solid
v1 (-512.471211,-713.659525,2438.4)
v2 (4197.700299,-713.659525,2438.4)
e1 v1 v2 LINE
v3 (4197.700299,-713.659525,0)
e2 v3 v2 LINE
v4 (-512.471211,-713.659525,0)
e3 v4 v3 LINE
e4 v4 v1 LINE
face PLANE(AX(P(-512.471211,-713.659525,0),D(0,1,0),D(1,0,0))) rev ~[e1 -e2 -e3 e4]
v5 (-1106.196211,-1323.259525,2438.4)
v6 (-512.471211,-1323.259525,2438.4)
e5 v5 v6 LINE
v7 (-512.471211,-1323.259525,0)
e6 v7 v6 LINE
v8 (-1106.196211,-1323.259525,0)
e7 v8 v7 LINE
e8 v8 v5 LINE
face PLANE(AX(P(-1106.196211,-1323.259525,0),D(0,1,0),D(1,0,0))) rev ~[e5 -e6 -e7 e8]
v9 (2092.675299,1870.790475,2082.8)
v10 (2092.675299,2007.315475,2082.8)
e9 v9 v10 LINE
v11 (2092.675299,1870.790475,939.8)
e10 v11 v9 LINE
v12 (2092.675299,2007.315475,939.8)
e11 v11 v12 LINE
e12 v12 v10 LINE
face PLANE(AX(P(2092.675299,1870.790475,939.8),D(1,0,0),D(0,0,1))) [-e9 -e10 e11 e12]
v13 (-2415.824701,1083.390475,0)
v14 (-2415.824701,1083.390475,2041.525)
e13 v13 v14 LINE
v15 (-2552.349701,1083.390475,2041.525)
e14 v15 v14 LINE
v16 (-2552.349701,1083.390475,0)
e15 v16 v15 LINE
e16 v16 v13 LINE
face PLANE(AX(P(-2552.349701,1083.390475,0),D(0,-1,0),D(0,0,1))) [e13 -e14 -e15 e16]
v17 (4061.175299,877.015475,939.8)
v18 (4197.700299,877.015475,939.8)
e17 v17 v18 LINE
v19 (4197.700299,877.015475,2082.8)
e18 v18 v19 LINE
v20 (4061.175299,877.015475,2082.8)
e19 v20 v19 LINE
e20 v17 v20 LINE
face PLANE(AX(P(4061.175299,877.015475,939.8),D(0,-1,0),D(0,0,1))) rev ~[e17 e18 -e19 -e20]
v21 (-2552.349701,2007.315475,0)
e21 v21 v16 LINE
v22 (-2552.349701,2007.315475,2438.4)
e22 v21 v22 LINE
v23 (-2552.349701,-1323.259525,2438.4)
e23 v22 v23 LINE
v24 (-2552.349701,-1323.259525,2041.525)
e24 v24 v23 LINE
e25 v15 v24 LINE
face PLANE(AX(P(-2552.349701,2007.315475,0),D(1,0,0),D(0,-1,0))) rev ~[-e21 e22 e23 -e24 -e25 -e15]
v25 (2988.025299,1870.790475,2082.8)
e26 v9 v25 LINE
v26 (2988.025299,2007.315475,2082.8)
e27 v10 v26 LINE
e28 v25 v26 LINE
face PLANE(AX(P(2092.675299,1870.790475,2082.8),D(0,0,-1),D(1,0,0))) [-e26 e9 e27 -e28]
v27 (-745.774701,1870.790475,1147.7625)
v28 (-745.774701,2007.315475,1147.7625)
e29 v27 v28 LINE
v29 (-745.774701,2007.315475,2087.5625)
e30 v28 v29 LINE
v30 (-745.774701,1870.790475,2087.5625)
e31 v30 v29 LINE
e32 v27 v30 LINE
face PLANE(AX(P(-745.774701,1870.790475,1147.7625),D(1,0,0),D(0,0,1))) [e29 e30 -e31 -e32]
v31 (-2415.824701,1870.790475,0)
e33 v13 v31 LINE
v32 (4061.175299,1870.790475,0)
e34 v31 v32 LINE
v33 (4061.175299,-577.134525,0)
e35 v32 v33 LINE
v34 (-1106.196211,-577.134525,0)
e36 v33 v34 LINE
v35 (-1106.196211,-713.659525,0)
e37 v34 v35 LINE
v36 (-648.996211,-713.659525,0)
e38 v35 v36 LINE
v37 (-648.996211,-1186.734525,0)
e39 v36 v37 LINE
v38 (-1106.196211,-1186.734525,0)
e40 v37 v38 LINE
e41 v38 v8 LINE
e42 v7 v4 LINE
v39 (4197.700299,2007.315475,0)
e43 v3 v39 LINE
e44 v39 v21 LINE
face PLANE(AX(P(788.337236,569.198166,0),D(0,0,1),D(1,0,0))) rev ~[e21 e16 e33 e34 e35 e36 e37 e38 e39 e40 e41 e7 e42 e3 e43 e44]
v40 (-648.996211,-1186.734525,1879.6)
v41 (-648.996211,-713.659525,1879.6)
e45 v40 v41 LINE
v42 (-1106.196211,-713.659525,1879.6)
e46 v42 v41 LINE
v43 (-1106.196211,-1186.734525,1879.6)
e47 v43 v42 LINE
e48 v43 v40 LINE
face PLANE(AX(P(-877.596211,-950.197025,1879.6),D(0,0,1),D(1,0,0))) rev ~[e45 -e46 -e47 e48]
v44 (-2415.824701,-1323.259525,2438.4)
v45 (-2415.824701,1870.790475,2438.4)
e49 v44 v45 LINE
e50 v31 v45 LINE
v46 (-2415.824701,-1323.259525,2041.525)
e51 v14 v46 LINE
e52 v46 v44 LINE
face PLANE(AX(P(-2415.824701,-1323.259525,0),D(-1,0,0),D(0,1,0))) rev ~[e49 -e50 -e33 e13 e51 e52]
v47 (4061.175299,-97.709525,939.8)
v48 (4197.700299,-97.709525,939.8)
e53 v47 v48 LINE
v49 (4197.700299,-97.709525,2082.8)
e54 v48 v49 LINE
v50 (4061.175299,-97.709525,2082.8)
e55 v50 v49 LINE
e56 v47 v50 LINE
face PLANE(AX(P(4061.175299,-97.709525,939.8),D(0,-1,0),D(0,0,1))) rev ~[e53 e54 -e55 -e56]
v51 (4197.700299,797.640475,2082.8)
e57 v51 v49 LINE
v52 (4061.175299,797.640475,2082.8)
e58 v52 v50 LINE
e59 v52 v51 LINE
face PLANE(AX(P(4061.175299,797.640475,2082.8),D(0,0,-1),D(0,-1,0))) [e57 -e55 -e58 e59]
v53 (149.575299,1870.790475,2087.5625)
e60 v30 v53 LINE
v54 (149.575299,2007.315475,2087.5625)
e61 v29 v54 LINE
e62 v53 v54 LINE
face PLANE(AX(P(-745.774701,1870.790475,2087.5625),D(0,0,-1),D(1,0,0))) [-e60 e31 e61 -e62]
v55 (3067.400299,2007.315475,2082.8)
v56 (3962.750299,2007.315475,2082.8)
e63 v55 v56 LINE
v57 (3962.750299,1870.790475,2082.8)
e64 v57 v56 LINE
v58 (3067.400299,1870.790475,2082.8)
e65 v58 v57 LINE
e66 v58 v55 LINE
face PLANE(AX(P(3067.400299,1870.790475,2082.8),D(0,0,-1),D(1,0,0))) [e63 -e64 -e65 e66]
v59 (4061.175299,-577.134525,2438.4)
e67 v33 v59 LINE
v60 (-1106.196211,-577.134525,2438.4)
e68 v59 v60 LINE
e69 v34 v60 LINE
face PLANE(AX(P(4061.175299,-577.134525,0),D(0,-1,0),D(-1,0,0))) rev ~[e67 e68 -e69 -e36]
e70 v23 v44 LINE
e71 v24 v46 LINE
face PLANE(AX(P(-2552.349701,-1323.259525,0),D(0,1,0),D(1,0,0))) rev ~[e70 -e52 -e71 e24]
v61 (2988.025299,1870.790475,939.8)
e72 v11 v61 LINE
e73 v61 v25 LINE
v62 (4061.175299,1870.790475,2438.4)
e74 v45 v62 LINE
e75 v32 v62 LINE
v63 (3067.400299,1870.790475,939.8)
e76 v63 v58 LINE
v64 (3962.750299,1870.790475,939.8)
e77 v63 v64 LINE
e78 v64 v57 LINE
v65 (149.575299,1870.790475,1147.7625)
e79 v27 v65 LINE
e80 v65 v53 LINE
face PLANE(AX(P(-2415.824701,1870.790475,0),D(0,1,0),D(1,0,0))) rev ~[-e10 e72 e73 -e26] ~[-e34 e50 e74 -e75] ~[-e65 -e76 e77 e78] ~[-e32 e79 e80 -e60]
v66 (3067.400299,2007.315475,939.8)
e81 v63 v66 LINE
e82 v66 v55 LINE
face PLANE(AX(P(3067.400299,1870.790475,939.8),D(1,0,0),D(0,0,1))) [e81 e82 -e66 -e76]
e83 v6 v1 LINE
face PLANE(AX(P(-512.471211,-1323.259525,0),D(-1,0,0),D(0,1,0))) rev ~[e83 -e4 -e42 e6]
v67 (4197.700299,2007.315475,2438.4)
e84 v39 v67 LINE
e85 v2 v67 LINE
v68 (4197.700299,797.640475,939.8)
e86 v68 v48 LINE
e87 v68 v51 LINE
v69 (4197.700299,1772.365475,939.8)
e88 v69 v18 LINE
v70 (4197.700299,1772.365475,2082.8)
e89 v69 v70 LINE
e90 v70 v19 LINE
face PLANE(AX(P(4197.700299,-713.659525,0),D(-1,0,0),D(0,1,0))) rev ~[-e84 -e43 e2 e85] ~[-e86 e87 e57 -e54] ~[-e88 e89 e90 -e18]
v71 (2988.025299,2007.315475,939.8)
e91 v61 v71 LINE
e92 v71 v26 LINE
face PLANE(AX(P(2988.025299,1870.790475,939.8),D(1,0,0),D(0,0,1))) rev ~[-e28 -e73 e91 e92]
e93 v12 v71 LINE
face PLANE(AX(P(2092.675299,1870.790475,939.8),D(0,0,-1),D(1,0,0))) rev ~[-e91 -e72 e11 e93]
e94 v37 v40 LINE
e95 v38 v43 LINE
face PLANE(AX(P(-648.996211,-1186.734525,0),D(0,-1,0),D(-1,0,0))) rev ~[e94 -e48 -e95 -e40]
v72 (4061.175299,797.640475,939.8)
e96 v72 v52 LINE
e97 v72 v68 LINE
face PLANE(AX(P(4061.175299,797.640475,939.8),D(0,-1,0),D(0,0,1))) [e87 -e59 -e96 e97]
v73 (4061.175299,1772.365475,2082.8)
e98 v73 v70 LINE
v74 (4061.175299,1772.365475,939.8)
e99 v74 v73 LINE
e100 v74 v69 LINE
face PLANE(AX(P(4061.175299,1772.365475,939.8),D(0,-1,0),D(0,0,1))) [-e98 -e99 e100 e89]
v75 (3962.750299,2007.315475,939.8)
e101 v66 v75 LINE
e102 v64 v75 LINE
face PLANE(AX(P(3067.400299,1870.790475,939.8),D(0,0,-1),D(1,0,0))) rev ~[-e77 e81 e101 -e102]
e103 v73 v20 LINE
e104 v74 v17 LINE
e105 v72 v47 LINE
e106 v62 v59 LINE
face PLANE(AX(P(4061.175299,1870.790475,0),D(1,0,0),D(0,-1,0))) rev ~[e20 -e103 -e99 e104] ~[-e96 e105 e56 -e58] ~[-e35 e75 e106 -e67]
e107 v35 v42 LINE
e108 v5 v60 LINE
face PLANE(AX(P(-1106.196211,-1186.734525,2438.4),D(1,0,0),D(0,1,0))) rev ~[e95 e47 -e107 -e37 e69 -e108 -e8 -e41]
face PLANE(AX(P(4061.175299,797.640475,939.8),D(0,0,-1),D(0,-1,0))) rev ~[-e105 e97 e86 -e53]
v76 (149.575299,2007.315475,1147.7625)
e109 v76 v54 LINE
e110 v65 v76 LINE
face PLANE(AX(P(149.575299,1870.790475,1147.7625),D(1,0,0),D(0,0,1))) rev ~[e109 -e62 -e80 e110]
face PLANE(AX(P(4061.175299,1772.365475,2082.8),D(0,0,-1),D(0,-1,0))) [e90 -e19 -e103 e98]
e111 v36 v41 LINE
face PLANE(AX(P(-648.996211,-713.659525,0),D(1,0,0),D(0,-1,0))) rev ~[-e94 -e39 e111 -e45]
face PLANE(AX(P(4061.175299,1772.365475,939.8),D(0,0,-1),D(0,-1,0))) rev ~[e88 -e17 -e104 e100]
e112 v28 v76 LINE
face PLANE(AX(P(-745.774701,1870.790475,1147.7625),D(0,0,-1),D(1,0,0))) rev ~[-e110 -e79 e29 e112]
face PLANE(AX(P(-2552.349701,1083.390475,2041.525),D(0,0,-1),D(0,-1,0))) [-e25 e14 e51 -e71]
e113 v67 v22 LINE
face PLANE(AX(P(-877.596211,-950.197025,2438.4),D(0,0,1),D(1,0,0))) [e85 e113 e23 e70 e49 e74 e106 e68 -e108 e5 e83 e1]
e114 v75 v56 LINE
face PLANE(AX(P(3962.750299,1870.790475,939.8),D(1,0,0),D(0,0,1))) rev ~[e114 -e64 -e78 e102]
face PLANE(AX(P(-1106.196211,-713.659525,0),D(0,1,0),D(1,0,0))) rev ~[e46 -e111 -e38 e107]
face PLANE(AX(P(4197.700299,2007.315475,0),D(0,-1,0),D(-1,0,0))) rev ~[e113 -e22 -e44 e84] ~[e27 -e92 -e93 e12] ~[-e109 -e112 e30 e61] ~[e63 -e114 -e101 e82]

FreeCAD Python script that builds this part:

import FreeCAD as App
import Part
import Sketcher
Q = App.Units.Quantity

doc = App.newDocument("Part")
params = doc.addObject("Spreadsheet::Sheet", "Params")
for row, (alias, value) in enumerate([
    ("sketch1_width", "255 in"),
    ("sketch1_width2", "18 in"),
    ("sketch1_height", "24 in"),
    ("sketch1_width3", "265.75 in"),
    ("sketch1_height2", "125.75 in"),
    ("pad1_length", "96 in"),
    ("sketch2_height", "37 in"),
    ("sketch2_height2", "45 in"),
    ("sketch2_width", "35.25 in"),
    ("sketch3_height", "45 in"),
    ("sketch3_width", "35.25 in"),
    ("sketch4_width", "94.75 in"),
    ("sketch4_height", "80.375 in"),
    ("pocket3_length", "5.375 in"),
    ("sketch5_width", "18 in"),
    ("sketch5_height", "18.625 in"),
    ("pad2_length", "22 in"),
], start=1):
    params.set(f"A{row}", alias)
    params.set(f"B{row}", "=" + value)
    params.setAlias(f"B{row}", alias)

body = doc.addObject("PartDesign::Body", "Body")

sketch1 = body.newObject("Sketcher::SketchObject", "Sketch")
sketch1.AttachmentSupport = (doc.getObject("XY_Plane"), [""])
sketch1.MapMode = "FlatFace"
sketch1.addGeometry([
    Part.LineSegment(App.Vector(-2416, -1323, 0), App.Vector(-2416, 1871, 0)),
    Part.LineSegment(App.Vector(-2416, 1871, 0), App.Vector(4061, 1871, 0)),
    Part.LineSegment(App.Vector(4061, 1871, 0), App.Vector(4061, -577, 0)),
    Part.LineSegment(App.Vector(4061, -577, 0), App.Vector(-1106, -577, 0)),
    Part.LineSegment(App.Vector(-1106, -577, 0), App.Vector(-1106, -714, 0)),
    Part.LineSegment(App.Vector(-1106, -714, 0), App.Vector(-649, -714, 0)),
    Part.LineSegment(App.Vector(-649, -714, 0), App.Vector(-649, -1187, 0)),
    Part.LineSegment(App.Vector(-649, -1187, 0), App.Vector(-1106, -1187, 0)),
    Part.LineSegment(App.Vector(-1106, -1187, 0), App.Vector(-1106, -1323, 0)),
    Part.LineSegment(App.Vector(-1106, -1323, 0), App.Vector(-512, -1323, 0)),
    Part.LineSegment(App.Vector(-512, -1323, 0), App.Vector(-512, -714, 0)),
    Part.LineSegment(App.Vector(-512, -714, 0), App.Vector(4198, -714, 0)),
    Part.LineSegment(App.Vector(4198, -714, 0), App.Vector(4198, 2007, 0)),
    Part.LineSegment(App.Vector(4198, 2007, 0), App.Vector(-2552, 2007, 0)),
    Part.LineSegment(App.Vector(-2552, 2007, 0), App.Vector(-2552, -1323, 0)),
    Part.LineSegment(App.Vector(-2552, -1323, 0), App.Vector(-2416, -1323, 0)),
], False)
sketch1.addConstraint([
    Sketcher.Constraint("Coincident", 0, 2, 1, 1),
    Sketcher.Constraint("Coincident", 1, 2, 2, 1),
    Sketcher.Constraint("Coincident", 2, 2, 3, 1),
    Sketcher.Constraint("Coincident", 3, 2, 4, 1),
    Sketcher.Constraint("Coincident", 4, 2, 5, 1),
    Sketcher.Constraint("Coincident", 5, 2, 6, 1),
    Sketcher.Constraint("Coincident", 6, 2, 7, 1),
    Sketcher.Constraint("Coincident", 7, 2, 8, 1),
    Sketcher.Constraint("Coincident", 8, 2, 9, 1),
    Sketcher.Constraint("Coincident", 9, 2, 10, 1),
    Sketcher.Constraint("Coincident", 10, 2, 11, 1),
    Sketcher.Constraint("Coincident", 11, 2, 12, 1),
    Sketcher.Constraint("Coincident", 12, 2, 13, 1),
    Sketcher.Constraint("Coincident", 13, 2, 14, 1),
    Sketcher.Constraint("Coincident", 14, 2, 15, 1),
    Sketcher.Constraint("Coincident", 15, 2, 0, 1),
    Sketcher.Constraint("Vertical", 0),
    Sketcher.Constraint("Horizontal", 1),
    Sketcher.Constraint("Vertical", 2),
    Sketcher.Constraint("Horizontal", 3),
    Sketcher.Constraint("Vertical", 4),
    Sketcher.Constraint("Horizontal", 5),
    Sketcher.Constraint("Vertical", 6),
    Sketcher.Constraint("Horizontal", 7),
    Sketcher.Constraint("Vertical", 8),
    Sketcher.Constraint("Horizontal", 9),
    Sketcher.Constraint("Vertical", 10),
    Sketcher.Constraint("Horizontal", 11),
    Sketcher.Constraint("Vertical", 12),
    Sketcher.Constraint("Horizontal", 13),
    Sketcher.Constraint("Vertical", 14),
    Sketcher.Constraint("Horizontal", 15),
    Sketcher.Constraint("Horizontal", 5, 2, 10, 2),
    Sketcher.Constraint("Horizontal", 9, 2, 14, 2),
    Sketcher.Constraint("Vertical", 4, 2, 7, 2),
    Sketcher.Constraint("Equal", 15, 4),
    Sketcher.Constraint("Equal", 4, 8),
    Sketcher.Constraint("DistanceX", 1, 1, 1, 2, Q("255 in")),
    Sketcher.Constraint("DistanceX", 5, 1, 5, 2, Q("18 in")),
    Sketcher.Constraint("DistanceY", 10, 1, 10, 2, Q("24 in")),
    Sketcher.Constraint("DistanceX", 13, 2, 13, 1, Q("265.75 in")),
    Sketcher.Constraint("DistanceY", 0, 1, 0, 2, Q("125.75 in")),
    Sketcher.Constraint("DistanceX", 9, 1, 9, 2, Q("23.375 in")),
    Sketcher.Constraint("DistanceX", 15, 1, 15, 2, Q("5.375 in")),
    Sketcher.Constraint("DistanceY", 12, 1, 12, 2, Q("107.125 in")),
    Sketcher.Constraint("DistanceX", 3, 2, 3, 1, Q("5167.37151 mm")),
    Sketcher.Constraint("DistanceX", 0, 2, -1, 1, Q("2415.824701 mm")),
    Sketcher.Constraint("DistanceY", -1, 1, 0, 2, Q("1870.790475 mm")),
])
sketch1.setExpression("Constraints[37]", "Params.sketch1_width")
sketch1.setExpression("Constraints[38]", "Params.sketch1_width2")
sketch1.setExpression("Constraints[39]", "Params.sketch1_height")
sketch1.setExpression("Constraints[40]", "Params.sketch1_width3")
sketch1.setExpression("Constraints[41]", "Params.sketch1_height2")
pad1 = body.newObject("PartDesign::Pad", "Pad")
pad1.Profile = sketch1
pad1.setExpression("Length", "Params.pad1_length")

sketch2 = body.newObject("Sketcher::SketchObject", "Sketch001")
sketch2.AttachmentSupport = (doc.getObject("XZ_Plane"), [""])
sketch2.MapMode = "FlatFace"
sketch2.AttachmentOffset = App.Placement(App.Vector(0, 0, -1870.790475), App.Rotation())
sketch2.addGeometry([
    Part.LineSegment(App.Vector(-746, 2088, 0), App.Vector(-746, 1148, 0)),
    Part.LineSegment(App.Vector(-746, 1148, 0), App.Vector(150, 1148, 0)),
    Part.LineSegment(App.Vector(150, 1148, 0), App.Vector(150, 2088, 0)),
    Part.LineSegment(App.Vector(150, 2088, 0), App.Vector(-746, 2088, 0)),
    Part.LineSegment(App.Vector(2093, 2083, 0), App.Vector(2093, 940, 0)),
    Part.LineSegment(App.Vector(2093, 940, 0), App.Vector(2988, 940, 0)),
    Part.LineSegment(App.Vector(2988, 940, 0), App.Vector(2988, 2083, 0)),
    Part.LineSegment(App.Vector(2988, 2083, 0), App.Vector(2093, 2083, 0)),
    Part.LineSegment(App.Vector(3067, 2083, 0), App.Vector(3067, 940, 0)),
    Part.LineSegment(App.Vector(3067, 940, 0), App.Vector(3963, 940, 0)),
    Part.LineSegment(App.Vector(3963, 940, 0), App.Vector(3963, 2083, 0)),
    Part.LineSegment(App.Vector(3963, 2083, 0), App.Vector(3067, 2083, 0)),
], False)
sketch2.addConstraint([
    Sketcher.Constraint("Coincident", 0, 2, 1, 1),
    Sketcher.Constraint("Coincident", 1, 2, 2, 1),
    Sketcher.Constraint("Coincident", 2, 2, 3, 1),
    Sketcher.Constraint("Coincident", 3, 2, 0, 1),
    Sketcher.Constraint("Coincident", 4, 2, 5, 1),
    Sketcher.Constraint("Coincident", 5, 2, 6, 1),
    Sketcher.Constraint("Coincident", 6, 2, 7, 1),
    Sketcher.Constraint("Coincident", 7, 2, 4, 1),
    Sketcher.Constraint("Coincident", 8, 2, 9, 1),
    Sketcher.Constraint("Coincident", 9, 2, 10, 1),
    Sketcher.Constraint("Coincident", 10, 2, 11, 1),
    Sketcher.Constraint("Coincident", 11, 2, 8, 1),
    Sketcher.Constraint("Vertical", 0),
    Sketcher.Constraint("Horizontal", 1),
    Sketcher.Constraint("Vertical", 2),
    Sketcher.Constraint("Horizontal", 3),
    Sketcher.Constraint("Vertical", 4),
    Sketcher.Constraint("Horizontal", 5),
    Sketcher.Constraint("Vertical", 6),
    Sketcher.Constraint("Horizontal", 7),
    Sketcher.Constraint("Vertical", 8),
    Sketcher.Constraint("Horizontal", 9),
    Sketcher.Constraint("Vertical", 10),
    Sketcher.Constraint("Horizontal", 11),
    Sketcher.Constraint("Horizontal", 5, 2, 8, 2),
    Sketcher.Constraint("Horizontal", 7, 2, 10, 2),
    Sketcher.Constraint("Equal", 3, 5),
    Sketcher.Constraint("Equal", 7, 9),
    Sketcher.Constraint("DistanceY", 0, 2, 0, 1, Q("37 in")),
    Sketcher.Constraint("DistanceY", 4, 2, 4, 1, Q("45 in")),
    Sketcher.Constraint("DistanceY", -1, 1, 4, 2, Q("37 in")),
    Sketcher.Constraint("DistanceX", 0, 2, 5, 2, Q("147 in")),
    Sketcher.Constraint("DistanceX", 1, 1, 1, 2, Q("35.25 in")),
    Sketcher.Constraint("DistanceY", -1, 1, 0, 2, Q("45.1875 in")),
    Sketcher.Constraint("DistanceX", 5, 2, 8, 2, Q("3.125 in")),
    Sketcher.Constraint("DistanceX", 0, 2, -1, 1, Q("745.774701 mm")),
])
sketch2.setExpression("Constraints[28]", "Params.sketch2_height")
sketch2.setExpression("Constraints[29]", "Params.sketch2_height2")
sketch2.setExpression("Constraints[32]", "Params.sketch2_width")
pocket1 = body.newObject("PartDesign::Pocket", "Pocket")
pocket1.Profile = sketch2
pocket1.Type = "ThroughAll"

sketch3 = body.newObject("Sketcher::SketchObject", "Sketch002")
sketch3.AttachmentSupport = (doc.getObject("YZ_Plane"), [""])
sketch3.MapMode = "FlatFace"
sketch3.AttachmentOffset = App.Placement(App.Vector(0, 0, 4061.175299), App.Rotation())
sketch3.addGeometry([
    Part.LineSegment(App.Vector(1772, 2083, 0), App.Vector(1772, 940, 0)),
    Part.LineSegment(App.Vector(1772, 940, 0), App.Vector(877, 940, 0)),
    Part.LineSegment(App.Vector(877, 940, 0), App.Vector(877, 2083, 0)),
    Part.LineSegment(App.Vector(877, 2083, 0), App.Vector(1772, 2083, 0)),
    Part.LineSegment(App.Vector(798, 2083, 0), App.Vector(798, 940, 0)),
    Part.LineSegment(App.Vector(798, 940, 0), App.Vector(-98, 940, 0)),
    Part.LineSegment(App.Vector(-98, 940, 0), App.Vector(-98, 2083, 0)),
    Part.LineSegment(App.Vector(-98, 2083, 0), App.Vector(798, 2083, 0)),
], False)
sketch3.addConstraint([
    Sketcher.Constraint("Coincident", 0, 2, 1, 1),
    Sketcher.Constraint("Coincident", 1, 2, 2, 1),
    Sketcher.Constraint("Coincident", 2, 2, 3, 1),
    Sketcher.Constraint("Coincident", 3, 2, 0, 1),
    Sketcher.Constraint("Coincident", 4, 2, 5, 1),
    Sketcher.Constraint("Coincident", 5, 2, 6, 1),
    Sketcher.Constraint("Coincident", 6, 2, 7, 1),
    Sketcher.Constraint("Coincident", 7, 2, 4, 1),
    Sketcher.Constraint("Vertical", 0),
    Sketcher.Constraint("Horizontal", 1),
    Sketcher.Constraint("Vertical", 2),
    Sketcher.Constraint("Horizontal", 3),
    Sketcher.Constraint("Vertical", 4),
    Sketcher.Constraint("Horizontal", 5),
    Sketcher.Constraint("Vertical", 6),
    Sketcher.Constraint("Horizontal", 7),
    Sketcher.Constraint("Horizontal", 1, 2, 4, 2),
    Sketcher.Constraint("Horizontal", 3, 2, 6, 2),
    Sketcher.Constraint("Equal", 3, 5),
    Sketcher.Constraint("DistanceY", 0, 2, 0, 1, Q("45 in")),
    Sketcher.Constraint("DistanceY", -1, 1, 0, 2, Q("37 in")),
    Sketcher.Constraint("DistanceX", 1, 2, 1, 1, Q("35.25 in")),
    Sketcher.Constraint("DistanceX", 4, 2, 1, 2, Q("3.125 in")),
    Sketcher.Constraint("DistanceX", -1, 1, 0, 2, Q("1772.365475 mm")),
])
sketch3.setExpression("Constraints[19]", "Params.sketch3_height")
sketch3.setExpression("Constraints[21]", "Params.sketch3_width")
pocket2 = body.newObject("PartDesign::Pocket", "Pocket001")
pocket2.Profile = sketch3
pocket2.Type = "ThroughAll"
pocket2.Reversed = True

sketch4 = body.newObject("Sketcher::SketchObject", "Sketch003")
sketch4.AttachmentSupport = (doc.getObject("YZ_Plane"), [""])
sketch4.MapMode = "FlatFace"
sketch4.AttachmentOffset = App.Placement(App.Vector(0, 0, -2552.349701), App.Rotation())
sketch4.addGeometry([
    Part.LineSegment(App.Vector(1083, 2042, 0), App.Vector(1083, 0, 0)),
    Part.LineSegment(App.Vector(1083, 0, 0), App.Vector(-1323, 0, 0)),
    Part.LineSegment(App.Vector(-1323, 0, 0), App.Vector(-1323, 2042, 0)),
    Part.LineSegment(App.Vector(-1323, 2042, 0), App.Vector(1083, 2042, 0)),
], False)
sketch4.addConstraint([
    Sketcher.Constraint("Coincident", 0, 2, 1, 1),
    Sketcher.Constraint("Coincident", 1, 2, 2, 1),
    Sketcher.Constraint("Coincident", 2, 2, 3, 1),
    Sketcher.Constraint("Coincident", 3, 2, 0, 1),
    Sketcher.Constraint("Vertical", 0),
    Sketcher.Constraint("Horizontal", 1),
    Sketcher.Constraint("Vertical", 2),
    Sketcher.Constraint("Horizontal", 3),
    Sketcher.Constraint("PointOnObject", 0, 2, -1),
    Sketcher.Constraint("DistanceX", 1, 2, 1, 1, Q("94.75 in")),
    Sketcher.Constraint("DistanceY", 0, 2, 0, 1, Q("80.375 in")),
    Sketcher.Constraint("DistanceX", -1, 1, 0, 2, Q("1083.390475 mm")),
])
sketch4.setExpression("Constraints[9]", "Params.sketch4_width")
sketch4.setExpression("Constraints[10]", "Params.sketch4_height")
pocket3 = body.newObject("PartDesign::Pocket", "Pocket002")
pocket3.Profile = sketch4
pocket3.setExpression("Length", "Params.pocket3_length")
pocket3.Reversed = True

sketch5 = body.newObject("Sketcher::SketchObject", "Sketch004")
sketch5.AttachmentSupport = (doc.getObject("XY_Plane"), [""])
sketch5.MapMode = "FlatFace"
sketch5.AttachmentOffset = App.Placement(App.Vector(0, 0, 96 * 25.4), App.Rotation())
sketch5.addGeometry([
    Part.LineSegment(App.Vector(-1106, -714, 0), App.Vector(-1106, -1187, 0)),
    Part.LineSegment(App.Vector(-1106, -1187, 0), App.Vector(-649, -1187, 0)),
    Part.LineSegment(App.Vector(-649, -1187, 0), App.Vector(-649, -714, 0)),
    Part.LineSegment(App.Vector(-649, -714, 0), App.Vector(-1106, -714, 0)),
], False)
sketch5.addConstraint([
    Sketcher.Constraint("Coincident", 0, 2, 1, 1),
    Sketcher.Constraint("Coincident", 1, 2, 2, 1),
    Sketcher.Constraint("Coincident", 2, 2, 3, 1),
    Sketcher.Constraint("Coincident", 3, 2, 0, 1),
    Sketcher.Constraint("Vertical", 0),
    Sketcher.Constraint("Horizontal", 1),
    Sketcher.Constraint("Vertical", 2),
    Sketcher.Constraint("Horizontal", 3),
    Sketcher.Constraint("DistanceX", 1, 1, 1, 2, Q("18 in")),
    Sketcher.Constraint("DistanceY", 0, 2, 0, 1, Q("18.625 in")),
    Sketcher.Constraint("DistanceX", 0, 2, -1, 1, Q("1106.196211 mm")),
    Sketcher.Constraint("DistanceY", 0, 2, -1, 1, Q("1186.734525 mm")),
])
sketch5.setExpression("Constraints[8]", "Params.sketch5_width")
sketch5.setExpression("Constraints[9]", "Params.sketch5_height")
pad2 = body.newObject("PartDesign::Pad", "Pad001")
pad2.Profile = sketch5
pad2.setExpression("Length", "Params.pad2_length")
pad2.Reversed = True

doc.recompute()
